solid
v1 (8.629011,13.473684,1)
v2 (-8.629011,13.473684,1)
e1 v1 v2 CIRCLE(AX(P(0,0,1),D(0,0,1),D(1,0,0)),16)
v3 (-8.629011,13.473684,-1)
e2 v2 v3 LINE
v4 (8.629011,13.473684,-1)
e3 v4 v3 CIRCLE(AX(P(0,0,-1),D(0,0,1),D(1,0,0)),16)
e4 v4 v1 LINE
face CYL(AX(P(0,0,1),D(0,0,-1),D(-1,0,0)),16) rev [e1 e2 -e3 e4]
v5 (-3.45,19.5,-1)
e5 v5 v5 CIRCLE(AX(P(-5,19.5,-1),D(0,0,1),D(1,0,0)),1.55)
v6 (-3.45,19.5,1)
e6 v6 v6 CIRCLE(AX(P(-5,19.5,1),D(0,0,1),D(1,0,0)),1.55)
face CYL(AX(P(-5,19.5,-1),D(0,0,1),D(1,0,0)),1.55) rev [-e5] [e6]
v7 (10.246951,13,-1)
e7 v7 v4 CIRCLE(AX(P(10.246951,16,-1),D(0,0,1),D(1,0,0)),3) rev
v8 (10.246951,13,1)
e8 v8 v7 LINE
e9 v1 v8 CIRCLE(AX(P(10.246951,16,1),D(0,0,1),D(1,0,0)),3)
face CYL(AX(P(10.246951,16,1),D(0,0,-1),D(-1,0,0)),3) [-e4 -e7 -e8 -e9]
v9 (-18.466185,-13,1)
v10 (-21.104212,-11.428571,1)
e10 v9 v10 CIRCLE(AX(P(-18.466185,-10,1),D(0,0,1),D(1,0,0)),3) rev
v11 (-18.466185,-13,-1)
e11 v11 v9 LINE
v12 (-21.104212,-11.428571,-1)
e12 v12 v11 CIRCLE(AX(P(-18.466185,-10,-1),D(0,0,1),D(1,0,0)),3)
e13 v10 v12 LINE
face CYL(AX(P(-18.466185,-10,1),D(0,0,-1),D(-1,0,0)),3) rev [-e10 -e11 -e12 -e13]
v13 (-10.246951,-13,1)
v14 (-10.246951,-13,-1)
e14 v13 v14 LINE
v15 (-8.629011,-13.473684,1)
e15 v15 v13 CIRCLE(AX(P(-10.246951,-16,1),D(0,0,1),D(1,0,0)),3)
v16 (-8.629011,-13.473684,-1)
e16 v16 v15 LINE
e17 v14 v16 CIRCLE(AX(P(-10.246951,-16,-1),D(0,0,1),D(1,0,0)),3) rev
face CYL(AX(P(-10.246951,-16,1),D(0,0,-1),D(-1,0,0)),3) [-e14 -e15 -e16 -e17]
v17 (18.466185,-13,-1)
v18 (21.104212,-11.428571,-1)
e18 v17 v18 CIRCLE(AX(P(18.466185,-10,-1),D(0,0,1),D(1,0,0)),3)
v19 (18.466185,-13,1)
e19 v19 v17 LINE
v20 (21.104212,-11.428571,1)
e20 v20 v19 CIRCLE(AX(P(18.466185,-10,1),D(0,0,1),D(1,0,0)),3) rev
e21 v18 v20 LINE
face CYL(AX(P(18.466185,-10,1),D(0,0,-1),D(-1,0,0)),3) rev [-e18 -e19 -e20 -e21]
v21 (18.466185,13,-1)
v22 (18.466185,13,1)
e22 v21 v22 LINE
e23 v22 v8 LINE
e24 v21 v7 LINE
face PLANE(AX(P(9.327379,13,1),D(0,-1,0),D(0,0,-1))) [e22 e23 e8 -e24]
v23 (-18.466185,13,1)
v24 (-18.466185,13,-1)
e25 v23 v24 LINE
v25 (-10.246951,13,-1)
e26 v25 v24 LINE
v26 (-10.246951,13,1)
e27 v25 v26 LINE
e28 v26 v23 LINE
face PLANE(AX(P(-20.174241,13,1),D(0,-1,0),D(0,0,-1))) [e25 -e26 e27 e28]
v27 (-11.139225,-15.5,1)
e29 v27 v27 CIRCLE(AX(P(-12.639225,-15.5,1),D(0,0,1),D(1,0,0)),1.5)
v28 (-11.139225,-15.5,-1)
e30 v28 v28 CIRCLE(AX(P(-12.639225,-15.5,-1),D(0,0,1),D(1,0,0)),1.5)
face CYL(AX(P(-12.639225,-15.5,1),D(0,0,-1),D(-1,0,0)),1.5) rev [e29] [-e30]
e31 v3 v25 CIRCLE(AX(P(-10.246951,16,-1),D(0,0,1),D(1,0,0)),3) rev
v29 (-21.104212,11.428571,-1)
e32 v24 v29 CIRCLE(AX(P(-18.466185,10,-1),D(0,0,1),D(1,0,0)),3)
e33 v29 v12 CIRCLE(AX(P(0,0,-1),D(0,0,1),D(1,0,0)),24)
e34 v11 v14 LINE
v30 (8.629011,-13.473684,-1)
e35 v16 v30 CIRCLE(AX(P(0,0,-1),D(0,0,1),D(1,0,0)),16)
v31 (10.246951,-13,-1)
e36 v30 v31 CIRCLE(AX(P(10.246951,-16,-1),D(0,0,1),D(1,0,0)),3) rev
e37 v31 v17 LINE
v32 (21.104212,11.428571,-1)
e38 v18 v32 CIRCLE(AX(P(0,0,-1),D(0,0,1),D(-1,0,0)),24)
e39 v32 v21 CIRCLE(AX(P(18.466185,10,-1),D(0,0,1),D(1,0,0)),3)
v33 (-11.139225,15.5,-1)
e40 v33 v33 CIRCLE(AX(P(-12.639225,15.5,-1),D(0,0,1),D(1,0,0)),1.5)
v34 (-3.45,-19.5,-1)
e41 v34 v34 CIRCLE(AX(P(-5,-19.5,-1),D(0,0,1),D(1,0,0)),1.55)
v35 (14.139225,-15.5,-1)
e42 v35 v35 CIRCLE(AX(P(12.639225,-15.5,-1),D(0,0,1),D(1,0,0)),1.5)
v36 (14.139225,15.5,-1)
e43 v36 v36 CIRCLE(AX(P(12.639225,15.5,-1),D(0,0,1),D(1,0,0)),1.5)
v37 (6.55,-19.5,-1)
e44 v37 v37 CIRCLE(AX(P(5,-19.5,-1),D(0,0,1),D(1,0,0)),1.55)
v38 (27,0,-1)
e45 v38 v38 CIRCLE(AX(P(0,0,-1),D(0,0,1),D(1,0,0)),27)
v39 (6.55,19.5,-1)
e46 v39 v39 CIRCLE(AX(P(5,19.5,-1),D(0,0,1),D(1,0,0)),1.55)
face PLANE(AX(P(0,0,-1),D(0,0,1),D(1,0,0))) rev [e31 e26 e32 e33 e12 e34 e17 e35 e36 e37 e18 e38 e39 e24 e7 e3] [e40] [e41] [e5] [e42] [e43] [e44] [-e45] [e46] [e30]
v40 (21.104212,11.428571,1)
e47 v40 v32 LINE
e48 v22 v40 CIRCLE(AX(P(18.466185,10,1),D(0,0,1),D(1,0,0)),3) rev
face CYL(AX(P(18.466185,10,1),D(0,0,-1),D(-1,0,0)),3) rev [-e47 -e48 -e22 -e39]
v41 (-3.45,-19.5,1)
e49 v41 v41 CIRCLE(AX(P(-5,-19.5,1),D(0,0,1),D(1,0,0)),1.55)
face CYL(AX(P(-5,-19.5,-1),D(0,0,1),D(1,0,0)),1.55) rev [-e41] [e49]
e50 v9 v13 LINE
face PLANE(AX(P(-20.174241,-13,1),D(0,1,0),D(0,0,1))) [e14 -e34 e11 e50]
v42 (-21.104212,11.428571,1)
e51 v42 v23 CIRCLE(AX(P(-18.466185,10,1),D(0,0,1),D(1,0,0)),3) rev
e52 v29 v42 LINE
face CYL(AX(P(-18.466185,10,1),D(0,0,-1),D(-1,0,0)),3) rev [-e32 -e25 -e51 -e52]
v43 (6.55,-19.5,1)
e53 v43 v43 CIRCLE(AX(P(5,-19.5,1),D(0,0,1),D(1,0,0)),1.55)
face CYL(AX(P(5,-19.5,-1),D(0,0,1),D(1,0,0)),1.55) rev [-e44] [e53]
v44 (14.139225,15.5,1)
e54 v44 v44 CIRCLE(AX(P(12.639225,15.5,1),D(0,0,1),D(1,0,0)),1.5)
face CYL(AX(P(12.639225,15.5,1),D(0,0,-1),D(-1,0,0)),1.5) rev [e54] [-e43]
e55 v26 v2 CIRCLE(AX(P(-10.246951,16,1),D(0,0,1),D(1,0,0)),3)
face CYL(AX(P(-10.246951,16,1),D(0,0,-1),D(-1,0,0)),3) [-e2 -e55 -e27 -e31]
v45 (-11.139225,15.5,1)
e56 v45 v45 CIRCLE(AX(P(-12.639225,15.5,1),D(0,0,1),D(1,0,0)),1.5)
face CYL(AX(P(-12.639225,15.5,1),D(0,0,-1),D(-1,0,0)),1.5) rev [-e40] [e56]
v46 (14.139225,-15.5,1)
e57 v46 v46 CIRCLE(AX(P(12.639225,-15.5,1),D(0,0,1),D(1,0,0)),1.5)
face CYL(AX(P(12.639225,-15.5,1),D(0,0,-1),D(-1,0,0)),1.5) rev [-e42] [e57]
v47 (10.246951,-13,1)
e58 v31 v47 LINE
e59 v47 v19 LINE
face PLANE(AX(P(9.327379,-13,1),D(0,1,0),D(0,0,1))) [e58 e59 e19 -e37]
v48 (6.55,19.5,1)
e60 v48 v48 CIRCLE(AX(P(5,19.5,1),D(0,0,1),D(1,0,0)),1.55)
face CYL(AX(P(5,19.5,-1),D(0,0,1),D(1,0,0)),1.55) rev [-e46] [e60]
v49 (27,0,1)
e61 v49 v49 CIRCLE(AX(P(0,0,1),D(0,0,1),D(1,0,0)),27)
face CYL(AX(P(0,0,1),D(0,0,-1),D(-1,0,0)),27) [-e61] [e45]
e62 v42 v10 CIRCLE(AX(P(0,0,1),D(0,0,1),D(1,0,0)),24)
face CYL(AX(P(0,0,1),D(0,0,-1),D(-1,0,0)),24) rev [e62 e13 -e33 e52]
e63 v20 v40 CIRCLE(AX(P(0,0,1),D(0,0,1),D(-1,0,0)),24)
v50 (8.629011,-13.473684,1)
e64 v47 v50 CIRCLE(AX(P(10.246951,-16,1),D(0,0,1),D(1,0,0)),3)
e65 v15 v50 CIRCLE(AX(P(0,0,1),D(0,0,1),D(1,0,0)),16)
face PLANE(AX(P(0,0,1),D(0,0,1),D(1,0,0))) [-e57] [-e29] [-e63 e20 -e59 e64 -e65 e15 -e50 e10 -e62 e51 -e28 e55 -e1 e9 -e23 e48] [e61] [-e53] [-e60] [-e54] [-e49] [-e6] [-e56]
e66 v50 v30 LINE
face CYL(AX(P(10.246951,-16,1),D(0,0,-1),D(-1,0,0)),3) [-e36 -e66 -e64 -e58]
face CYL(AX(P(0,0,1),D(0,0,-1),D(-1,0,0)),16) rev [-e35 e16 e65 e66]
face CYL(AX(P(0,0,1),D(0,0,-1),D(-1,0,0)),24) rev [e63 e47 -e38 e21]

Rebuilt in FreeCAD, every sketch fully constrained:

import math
import FreeCAD as App
import Part
import Sketcher

V = App.Vector


def edges_at(feature, points):
    """Names of the edges that pass closest to the given points."""
    edges = feature.Shape.Edges
    near = lambda p: min(range(len(edges)), key=lambda i: edges[i].distToShape(Part.Vertex(*p))[0])
    return sorted({f"Edge{near(p) + 1}" for p in points})

doc = App.newDocument("Part")
params = doc.addObject("Spreadsheet::Sheet", "Params")
for row, (alias, value) in enumerate([
    ("sketch1_diameter", "54 mm"),
    ("sketch1_diameter2", "3 mm"),
    ("sketch1_radius", "24 mm"),
    ("sketch1_radius2", "16 mm"),
    ("pad1_length", "2 mm"),
    ("fillet_radius", "3 mm"),
    ("sketch2_diameter", "3.1 mm"),
], start=1):
    params.set(f"A{row}", alias)
    params.set(f"B{row}", "=" + value)
    params.setAlias(f"B{row}", alias)

body = doc.addObject("PartDesign::Body", "Body")

# Sketch on XY plane
sketch1 = body.newObject("Sketcher::SketchObject", "Sketch")
sketch1.AttachmentSupport = (doc.getObject("XY_Plane"), [""])
sketch1.MapMode = "FlatFace"
sketch1.addGeometry([
    Part.Circle(V(0, 0, 0), V(0, 0, 1), 27),  # 0
    Part.Circle(V(-12.639225, -15.5, 0), V(0, 0, 1), 1.5),  # 1
    Part.Circle(V(12.639225, -15.5, 0), V(0, 0, 1), 1.5),  # 2
    Part.Circle(V(-12.639225, 15.5, 0), V(0, 0, 1), 1.5),  # 3
    Part.ArcOfCircle(Part.Circle(V(0, 0, 0), V(0, 0, 1), 24), math.radians(147.202832), math.radians(212.797168)),  # 4
    Part.LineSegment(V(-20.174241, 13, 0), V(-9.327379, 13, 0)),  # 5
    Part.ArcOfCircle(Part.Circle(V(0, 0, 0), V(0, 0, 1), 16), math.radians(54.340912), math.radians(125.659088)),  # 6
    Part.LineSegment(V(9.327379, 13, 0), V(20.174241, 13, 0)),  # 7
    Part.ArcOfCircle(Part.Circle(V(0, 0, 0), V(0, 0, 1), 24), math.radians(-32.797168), math.radians(32.797168)),  # 8
    Part.LineSegment(V(20.174241, -13, 0), V(9.327379, -13, 0)),  # 9
    Part.ArcOfCircle(Part.Circle(V(0, 0, 0), V(0, 0, 1), 16), math.radians(-125.659088), math.radians(-54.340912)),  # 10
    Part.LineSegment(V(-9.327379, -13, 0), V(-20.174241, -13, 0)),  # 11
    Part.Circle(V(12.639225, 15.5, 0), V(0, 0, 1), 1.5),  # 12
], False)
sketch1.addConstraint([
    Sketcher.Constraint("Coincident", 4, 1, 5, 1),
    Sketcher.Constraint("Coincident", 5, 2, 6, 2),
    Sketcher.Constraint("Coincident", 6, 1, 7, 1),
    Sketcher.Constraint("Coincident", 7, 2, 8, 2),
    Sketcher.Constraint("Coincident", 8, 1, 9, 1),
    Sketcher.Constraint("Coincident", 9, 2, 10, 2),
    Sketcher.Constraint("Coincident", 10, 1, 11, 1),
    Sketcher.Constraint("Coincident", 11, 2, 4, 2),
    Sketcher.Constraint("Horizontal", 5),
    Sketcher.Constraint("Horizontal", 7),
    Sketcher.Constraint("Horizontal", 9),
    Sketcher.Constraint("Horizontal", 11),
    Sketcher.Constraint("Coincident", 0, 3, -1, 1),
    Sketcher.Constraint("Coincident", 4, 3, -1, 1),
    Sketcher.Constraint("Coincident", 6, 3, -1, 1),
    Sketcher.Constraint("Coincident", 8, 3, -1, 1),
    Sketcher.Constraint("Coincident", 10, 3, -1, 1),
    Sketcher.Constraint("Equal", 1, 2),
    Sketcher.Constraint("Equal", 2, 3),
    Sketcher.Constraint("Equal", 4, 8),
    Sketcher.Constraint("Equal", 6, 10),
    Sketcher.Constraint("Equal", 3, 12),
    Sketcher.Constraint("Symmetric", 2, 3, 3, 3, -1, 1),
    Sketcher.Constraint("Symmetric", 1, 3, 12, 3, -1, 1),
    Sketcher.Constraint("Symmetric", 1, 3, 2, 3, -2),
    Sketcher.Constraint("Horizontal", 5, 2, 6, 1),
    Sketcher.Constraint("Horizontal", 9, 2, 10, 1),
    Sketcher.Constraint("Vertical", 7, 2, 8, 1),
    Sketcher.Constraint("Diameter", 0, 54.0),
    Sketcher.Constraint("Diameter", 1, 3.0),
    Sketcher.Constraint("Radius", 4, 24.0),
    Sketcher.Constraint("Radius", 6, 16.0),
    Sketcher.Constraint("DistanceY", -1, 1, 4, 1, 13.0),
    Sketcher.Constraint("DistanceY", 1, 3, 3, 3, 31.0),
    Sketcher.Constraint("DistanceX", 1, 3, 2, 3, 25.278449),
])
sketch1.setExpression("Constraints[28]", "Params.sketch1_diameter")
sketch1.setExpression("Constraints[29]", "Params.sketch1_diameter2")
sketch1.setExpression("Constraints[30]", "Params.sketch1_radius")
sketch1.setExpression("Constraints[31]", "Params.sketch1_radius2")
pad1 = body.newObject("PartDesign::Pad", "Pad")
pad1.Profile = sketch1
pad1.setExpression("Length", "Params.pad1_length")
pad1.Midplane = True
doc.recompute()

fillet = body.newObject("PartDesign::Fillet", "Fillet")
fillet.Base = (pad1, edges_at(pad1, [
    (-20.174, 13, 0),
    (-20.174, -13, 0),
    (-9.327, -13, 0),
    (9.327, -13, 0),
    (20.174, -13, 0),
    (20.174, 13, 0),
    (9.327, 13, 0),
    (-9.327, 13, 0),
]))
fillet.setExpression("Radius", "Params.fillet_radius")

# Sketch on XY plane
sketch2 = body.newObject("Sketcher::SketchObject", "Sketch001")
sketch2.AttachmentSupport = (doc.getObject("XY_Plane"), [""])
sketch2.MapMode = "FlatFace"
sketch2.AttachmentOffset = App.Placement(V(0, 0, 1), App.Rotation())
sketch2.addGeometry([
    Part.Circle(V(-5, 19.5, 0), V(0, 0, 1), 1.55),
    Part.Circle(V(5, 19.5, 0), V(0, 0, 1), 1.55),
    Part.Circle(V(-5, -19.5, 0), V(0, 0, 1), 1.55),
    Part.Circle(V(5, -19.5, 0), V(0, 0, 1), 1.55),
], False)
sketch2.addConstraint([
    Sketcher.Constraint("Equal", 0, 1),
    Sketcher.Constraint("Equal", 1, 2),
    Sketcher.Constraint("Equal", 2, 3),
    Sketcher.Constraint("Symmetric", 1, 3, 2, 3, -1, 1),
    Sketcher.Constraint("Symmetric", 0, 3, 3, 3, -1, 1),
    Sketcher.Constraint("Symmetric", 0, 3, 1, 3, -2),
    Sketcher.Constraint("Diameter", 0, 3.1),
    Sketcher.Constraint("DistanceX", 0, 3, -1, 1, 5.0),
    Sketcher.Constraint("DistanceY", 2, 3, 0, 3, 39.0),
])
sketch2.setExpression("Constraints[6]", "Params.sketch2_diameter")
pocket1 = body.newObject("PartDesign::Pocket", "Pocket")
pocket1.Profile = sketch2
pocket1.Type = "ThroughAll"

doc.recompute()
